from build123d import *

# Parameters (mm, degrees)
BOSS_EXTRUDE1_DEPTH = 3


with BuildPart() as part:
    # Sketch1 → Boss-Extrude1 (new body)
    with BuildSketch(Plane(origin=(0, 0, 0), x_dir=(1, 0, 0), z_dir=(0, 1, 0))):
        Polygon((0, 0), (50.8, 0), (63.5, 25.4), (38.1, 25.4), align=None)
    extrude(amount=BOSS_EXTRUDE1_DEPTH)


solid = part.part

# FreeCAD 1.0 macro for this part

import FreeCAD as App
import Part
import Sketcher
from FreeCAD import Vector
Q = App.Units.Quantity


def add_polygon(sketch, points):
    """Adds a closed chain of lines whose ends are joined by coincident constraints."""
    first, n = sketch.GeometryCount, len(points)
    for a, b in zip(points, points[1:] + points[:1]):
        sketch.addGeometry(Part.LineSegment(App.Vector(*a, 0), App.Vector(*b, 0)), False)
    for i in range(n):
        sketch.addConstraint(Sketcher.Constraint("Coincident", first + i, 2, first + (i + 1) % n, 1))

doc = App.newDocument("Part")
body = doc.addObject("PartDesign::Body", "Body")

sketch1 = body.newObject("Sketcher::SketchObject", "Sketch")
sketch1.AttachmentSupport = (doc.getObject("XZ_Plane"), [""])
sketch1.MapMode = "FlatFace"
add_polygon(sketch1, [(0, 0), (51, 0), (64, -25), (38, -25)])
sketch1.addConstraint(Sketcher.Constraint("Horizontal", 0))
sketch1.addConstraint(Sketcher.Constraint("Horizontal", 2))
sketch1.addConstraint(Sketcher.Constraint("Coincident", 3, 2, -1, 1))
sketch1.addConstraint(Sketcher.Constraint("DistanceX", 0, 1, 0, 2, Q("2 in")))
sketch1.addConstraint(Sketcher.Constraint("DistanceX", 2, 2, 2, 1, Q("1 in")))
sketch1.addConstraint(Sketcher.Constraint("DistanceY", 1, 2, -1, 1, Q("1 in")))
sketch1.addConstraint(Sketcher.Constraint("DistanceX", -1, 1, 1, 2, Q("2.5 in")))
pad1 = body.newObject("PartDesign::Pad", "Pad")
pad1.Profile = sketch1
pad1.Length = 3
pad1.Reversed = True

doc.recompute()
